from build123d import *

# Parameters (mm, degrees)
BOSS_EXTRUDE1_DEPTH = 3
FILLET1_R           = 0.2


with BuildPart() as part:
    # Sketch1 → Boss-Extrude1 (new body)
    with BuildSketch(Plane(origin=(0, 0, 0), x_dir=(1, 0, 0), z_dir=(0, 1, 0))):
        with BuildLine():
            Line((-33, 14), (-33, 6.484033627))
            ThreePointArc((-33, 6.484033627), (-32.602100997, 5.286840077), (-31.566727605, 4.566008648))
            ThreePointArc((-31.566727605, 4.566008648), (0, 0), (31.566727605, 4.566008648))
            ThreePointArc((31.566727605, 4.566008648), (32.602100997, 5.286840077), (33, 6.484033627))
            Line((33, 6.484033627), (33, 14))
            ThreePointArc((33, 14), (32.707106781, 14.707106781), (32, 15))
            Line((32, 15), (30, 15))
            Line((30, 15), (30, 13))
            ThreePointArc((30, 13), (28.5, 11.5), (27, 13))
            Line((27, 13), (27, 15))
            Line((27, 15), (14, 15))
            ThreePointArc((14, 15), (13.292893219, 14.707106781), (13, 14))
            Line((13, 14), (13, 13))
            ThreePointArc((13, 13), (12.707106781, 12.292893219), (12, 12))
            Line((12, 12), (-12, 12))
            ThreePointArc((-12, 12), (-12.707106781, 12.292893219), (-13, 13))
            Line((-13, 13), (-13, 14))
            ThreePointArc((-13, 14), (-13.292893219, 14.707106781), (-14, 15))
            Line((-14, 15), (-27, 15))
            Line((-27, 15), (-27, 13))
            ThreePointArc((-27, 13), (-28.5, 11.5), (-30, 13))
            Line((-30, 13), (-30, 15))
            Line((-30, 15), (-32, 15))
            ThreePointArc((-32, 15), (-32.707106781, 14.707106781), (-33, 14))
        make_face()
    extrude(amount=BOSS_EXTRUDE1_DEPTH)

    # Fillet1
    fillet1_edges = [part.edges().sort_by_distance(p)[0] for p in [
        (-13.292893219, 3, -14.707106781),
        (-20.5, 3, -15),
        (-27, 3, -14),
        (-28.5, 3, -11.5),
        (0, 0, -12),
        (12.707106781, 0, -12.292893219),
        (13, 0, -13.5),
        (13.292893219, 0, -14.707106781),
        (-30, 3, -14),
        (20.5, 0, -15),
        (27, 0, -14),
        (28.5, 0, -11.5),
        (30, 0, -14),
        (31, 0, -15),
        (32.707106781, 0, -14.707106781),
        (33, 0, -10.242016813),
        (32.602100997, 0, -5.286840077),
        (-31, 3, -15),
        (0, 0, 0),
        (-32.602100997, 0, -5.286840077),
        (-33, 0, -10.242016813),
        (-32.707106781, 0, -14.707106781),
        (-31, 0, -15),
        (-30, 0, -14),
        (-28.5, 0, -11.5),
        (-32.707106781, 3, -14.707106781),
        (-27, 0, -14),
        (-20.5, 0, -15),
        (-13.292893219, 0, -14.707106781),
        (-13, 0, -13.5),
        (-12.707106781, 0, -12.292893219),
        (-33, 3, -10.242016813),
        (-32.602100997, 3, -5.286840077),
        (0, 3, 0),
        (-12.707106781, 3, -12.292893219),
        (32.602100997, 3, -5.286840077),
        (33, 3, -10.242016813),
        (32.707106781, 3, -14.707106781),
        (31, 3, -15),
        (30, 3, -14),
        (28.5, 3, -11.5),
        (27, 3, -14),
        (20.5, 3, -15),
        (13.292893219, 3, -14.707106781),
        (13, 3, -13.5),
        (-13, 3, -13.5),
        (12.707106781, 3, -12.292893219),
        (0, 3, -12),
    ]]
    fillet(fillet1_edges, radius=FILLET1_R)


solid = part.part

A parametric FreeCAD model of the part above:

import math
import FreeCAD as App
import Part
import Sketcher
from FreeCAD import Vector


def edges_at(feature, points):
    """Names of the edges that pass closest to the given points."""
    edges = feature.Shape.Edges
    near = lambda p: min(range(len(edges)), key=lambda i: edges[i].distToShape(Part.Vertex(*p))[0])
    return sorted({f"Edge{near(p) + 1}" for p in points})

doc = App.newDocument("Part")
body = doc.addObject("PartDesign::Body", "Body")

sketch1 = body.newObject("Sketcher::SketchObject", "Sketch")
sketch1.AttachmentSupport = (doc.getObject("XZ_Plane"), [""])
sketch1.MapMode = "FlatFace"
sketch1.addGeometry([
    Part.LineSegment(Vector(-33, -14, 0), Vector(-33, -6.5, 0)),
    Part.ArcOfCircle(Part.Circle(Vector(-31, -6.5, 0), Vector(0, 0, 1), 2), math.radians(106), math.radians(180)),
    Part.ArcOfCircle(Part.Circle(Vector(0, -111.4, 0), Vector(0, 0, 1), 111.4), math.radians(74), math.radians(106)),
    Part.ArcOfCircle(Part.Circle(Vector(31, -6.5, 0), Vector(0, 0, 1), 2), math.radians(0), math.radians(74)),
    Part.LineSegment(Vector(33, -6.5, 0), Vector(33, -14, 0)),
    Part.ArcOfCircle(Part.Circle(Vector(32, -14, 0), Vector(0, 0, 1), 1), math.radians(-90), math.radians(0)),
    Part.LineSegment(Vector(32, -15, 0), Vector(30, -15, 0)),
    Part.LineSegment(Vector(30, -15, 0), Vector(30, -13, 0)),
    Part.ArcOfCircle(Part.Circle(Vector(28.5, -13, 0), Vector(0, 0, 1), 1.5), math.radians(0), math.radians(180)),
    Part.LineSegment(Vector(27, -13, 0), Vector(27, -15, 0)),
    Part.LineSegment(Vector(27, -15, 0), Vector(14, -15, 0)),
    Part.ArcOfCircle(Part.Circle(Vector(14, -14, 0), Vector(0, 0, 1), 1), math.radians(-180), math.radians(-90)),
    Part.LineSegment(Vector(13, -14, 0), Vector(13, -13, 0)),
    Part.ArcOfCircle(Part.Circle(Vector(12, -13, 0), Vector(0, 0, 1), 1), math.radians(0), math.radians(90)),
    Part.LineSegment(Vector(12, -12, 0), Vector(-12, -12, 0)),
    Part.ArcOfCircle(Part.Circle(Vector(-12, -13, 0), Vector(0, 0, 1), 1), math.radians(90), math.radians(180)),
    Part.LineSegment(Vector(-13, -13, 0), Vector(-13, -14, 0)),
    Part.ArcOfCircle(Part.Circle(Vector(-14, -14, 0), Vector(0, 0, 1), 1), math.radians(-90), math.radians(0)),
    Part.LineSegment(Vector(-14, -15, 0), Vector(-27, -15, 0)),
    Part.LineSegment(Vector(-27, -15, 0), Vector(-27, -13, 0)),
    Part.ArcOfCircle(Part.Circle(Vector(-28.5, -13, 0), Vector(0, 0, 1), 1.5), math.radians(0), math.radians(180)),
    Part.LineSegment(Vector(-30, -13, 0), Vector(-30, -15, 0)),
    Part.LineSegment(Vector(-30, -15, 0), Vector(-32, -15, 0)),
    Part.ArcOfCircle(Part.Circle(Vector(-32, -14, 0), Vector(0, 0, 1), 1), math.radians(-180), math.radians(-90)),
], False)
sketch1.addConstraint([
    Sketcher.Constraint("Tangent", 0, 2, 1, 2),
    Sketcher.Constraint("Tangent", 1, 1, 2, 2),
    Sketcher.Constraint("Tangent", 2, 1, 3, 2),
    Sketcher.Constraint("Tangent", 3, 1, 4, 1),
    Sketcher.Constraint("Tangent", 4, 2, 5, 2),
    Sketcher.Constraint("Tangent", 5, 1, 6, 1),
    Sketcher.Constraint("Coincident", 6, 2, 7, 1),
    Sketcher.Constraint("Tangent", 7, 2, 8, 1),
    Sketcher.Constraint("Tangent", 8, 2, 9, 1),
    Sketcher.Constraint("Coincident", 9, 2, 10, 1),
    Sketcher.Constraint("Tangent", 10, 2, 11, 2),
    Sketcher.Constraint("Tangent", 11, 1, 12, 1),
    Sketcher.Constraint("Tangent", 12, 2, 13, 1),
    Sketcher.Constraint("Tangent", 13, 2, 14, 1),
    Sketcher.Constraint("Tangent", 14, 2, 15, 1),
    Sketcher.Constraint("Tangent", 15, 2, 16, 1),
    Sketcher.Constraint("Tangent", 16, 2, 17, 2),
    Sketcher.Constraint("Tangent", 17, 1, 18, 1),
    Sketcher.Constraint("Coincident", 18, 2, 19, 1),
    Sketcher.Constraint("Tangent", 19, 2, 20, 1),
    Sketcher.Constraint("Tangent", 20, 2, 21, 1),
    Sketcher.Constraint("Coincident", 21, 2, 22, 1),
    Sketcher.Constraint("Tangent", 22, 2, 23, 2),
    Sketcher.Constraint("Tangent", 23, 1, 0, 1),
    Sketcher.Constraint("Vertical", 0),
    Sketcher.Constraint("Vertical", 4),
    Sketcher.Constraint("Horizontal", 6),
    Sketcher.Constraint("Vertical", 7),
    Sketcher.Constraint("Vertical", 9),
    Sketcher.Constraint("Horizontal", 10),
    Sketcher.Constraint("Vertical", 12),
    Sketcher.Constraint("Horizontal", 14),
    Sketcher.Constraint("Vertical", 16),
    Sketcher.Constraint("Horizontal", 18),
    Sketcher.Constraint("Vertical", 19),
    Sketcher.Constraint("Vertical", 21),
    Sketcher.Constraint("Horizontal", 22),
    Sketcher.Constraint("Equal", 1, 3),
    Sketcher.Constraint("Equal", 5, 11),
    Sketcher.Constraint("Equal", 11, 13),
    Sketcher.Constraint("Equal", 13, 15),
    Sketcher.Constraint("Equal", 15, 17),
    Sketcher.Constraint("Equal", 8, 20),
    Sketcher.Constraint("Equal", 17, 23),
    Sketcher.Constraint("Symmetric", 1, 3, 3, 3, -2),
    Sketcher.Constraint("Symmetric", 11, 3, 17, 3, -2),
    Sketcher.Constraint("Symmetric", 8, 3, 20, 3, -2),
    Sketcher.Constraint("Horizontal", 5, 3, 11, 3),
    Sketcher.Constraint("Horizontal", 8, 3, 13, 3),
    Sketcher.Constraint("Horizontal", 17, 3, 23, 3),
    Sketcher.Constraint("Equal", 22, 7),
    Sketcher.Constraint("Radius", 1, 2.0),
    Sketcher.Constraint("Radius", 5, 1.0),
    Sketcher.Constraint("Radius", 2, 111.4),
    Sketcher.Constraint("Radius", 8, 1.5),
    Sketcher.Constraint("DistanceX", 6, 2, 6, 1, 2.0),
    Sketcher.Constraint("DistanceX", 10, 2, 10, 1, 13.0),
    Sketcher.Constraint("DistanceX", 14, 2, 14, 1, 24.0),
    Sketcher.Constraint("DistanceY", 5, 3, -1, 1, 14.0),
    Sketcher.Constraint("DistanceY", 2, 3, -1, 1, 111.4),
])
pad1 = body.newObject("PartDesign::Pad", "Pad")
pad1.Profile = sketch1
pad1.Length = 3
pad1.Reversed = True
doc.recompute()

fillet = body.newObject("PartDesign::Fillet", "Fillet")
fillet.Base = (pad1, edges_at(pad1, [
    (-13.293, 3, -14.707),
    (-20.5, 3, -15),
    (-27, 3, -14),
    (-28.5, 3, -11.5),
    (0, 0, -12),
    (12.707, 0, -12.293),
    (13, 0, -13.5),
    (13.293, 0, -14.707),
    (-30, 3, -14),
    (20.5, 0, -15),
    (27, 0, -14),
    (28.5, 0, -11.5),
    (30, 0, -14),
    (31, 0, -15),
    (32.707, 0, -14.707),
    (33, 0, -10.242),
    (32.602, 0, -5.287),
    (-31, 3, -15),
    (0, 0, 0),
    (-32.602, 0, -5.287),
    (-33, 0, -10.242),
    (-32.707, 0, -14.707),
    (-31, 0, -15),
    (-30, 0, -14),
    (-28.5, 0, -11.5),
    (-32.707, 3, -14.707),
    (-27, 0, -14),
    (-20.5, 0, -15),
    (-13.293, 0, -14.707),
    (-13, 0, -13.5),
    (-12.707, 0, -12.293),
    (-33, 3, -10.242),
    (-32.602, 3, -5.287),
    (0, 3, 0),
    (-12.707, 3, -12.293),
    (32.602, 3, -5.287),
    (33, 3, -10.242),
    (32.707, 3, -14.707),
    (31, 3, -15),
    (30, 3, -14),
    (28.5, 3, -11.5),
    (27, 3, -14),
    (20.5, 3, -15),
    (13.293, 3, -14.707),
    (13, 3, -13.5),
    (-13, 3, -13.5),
    (12.707, 3, -12.293),
    (0, 3, -12),
]))
fillet.Radius = 0.2

doc.recompute()
